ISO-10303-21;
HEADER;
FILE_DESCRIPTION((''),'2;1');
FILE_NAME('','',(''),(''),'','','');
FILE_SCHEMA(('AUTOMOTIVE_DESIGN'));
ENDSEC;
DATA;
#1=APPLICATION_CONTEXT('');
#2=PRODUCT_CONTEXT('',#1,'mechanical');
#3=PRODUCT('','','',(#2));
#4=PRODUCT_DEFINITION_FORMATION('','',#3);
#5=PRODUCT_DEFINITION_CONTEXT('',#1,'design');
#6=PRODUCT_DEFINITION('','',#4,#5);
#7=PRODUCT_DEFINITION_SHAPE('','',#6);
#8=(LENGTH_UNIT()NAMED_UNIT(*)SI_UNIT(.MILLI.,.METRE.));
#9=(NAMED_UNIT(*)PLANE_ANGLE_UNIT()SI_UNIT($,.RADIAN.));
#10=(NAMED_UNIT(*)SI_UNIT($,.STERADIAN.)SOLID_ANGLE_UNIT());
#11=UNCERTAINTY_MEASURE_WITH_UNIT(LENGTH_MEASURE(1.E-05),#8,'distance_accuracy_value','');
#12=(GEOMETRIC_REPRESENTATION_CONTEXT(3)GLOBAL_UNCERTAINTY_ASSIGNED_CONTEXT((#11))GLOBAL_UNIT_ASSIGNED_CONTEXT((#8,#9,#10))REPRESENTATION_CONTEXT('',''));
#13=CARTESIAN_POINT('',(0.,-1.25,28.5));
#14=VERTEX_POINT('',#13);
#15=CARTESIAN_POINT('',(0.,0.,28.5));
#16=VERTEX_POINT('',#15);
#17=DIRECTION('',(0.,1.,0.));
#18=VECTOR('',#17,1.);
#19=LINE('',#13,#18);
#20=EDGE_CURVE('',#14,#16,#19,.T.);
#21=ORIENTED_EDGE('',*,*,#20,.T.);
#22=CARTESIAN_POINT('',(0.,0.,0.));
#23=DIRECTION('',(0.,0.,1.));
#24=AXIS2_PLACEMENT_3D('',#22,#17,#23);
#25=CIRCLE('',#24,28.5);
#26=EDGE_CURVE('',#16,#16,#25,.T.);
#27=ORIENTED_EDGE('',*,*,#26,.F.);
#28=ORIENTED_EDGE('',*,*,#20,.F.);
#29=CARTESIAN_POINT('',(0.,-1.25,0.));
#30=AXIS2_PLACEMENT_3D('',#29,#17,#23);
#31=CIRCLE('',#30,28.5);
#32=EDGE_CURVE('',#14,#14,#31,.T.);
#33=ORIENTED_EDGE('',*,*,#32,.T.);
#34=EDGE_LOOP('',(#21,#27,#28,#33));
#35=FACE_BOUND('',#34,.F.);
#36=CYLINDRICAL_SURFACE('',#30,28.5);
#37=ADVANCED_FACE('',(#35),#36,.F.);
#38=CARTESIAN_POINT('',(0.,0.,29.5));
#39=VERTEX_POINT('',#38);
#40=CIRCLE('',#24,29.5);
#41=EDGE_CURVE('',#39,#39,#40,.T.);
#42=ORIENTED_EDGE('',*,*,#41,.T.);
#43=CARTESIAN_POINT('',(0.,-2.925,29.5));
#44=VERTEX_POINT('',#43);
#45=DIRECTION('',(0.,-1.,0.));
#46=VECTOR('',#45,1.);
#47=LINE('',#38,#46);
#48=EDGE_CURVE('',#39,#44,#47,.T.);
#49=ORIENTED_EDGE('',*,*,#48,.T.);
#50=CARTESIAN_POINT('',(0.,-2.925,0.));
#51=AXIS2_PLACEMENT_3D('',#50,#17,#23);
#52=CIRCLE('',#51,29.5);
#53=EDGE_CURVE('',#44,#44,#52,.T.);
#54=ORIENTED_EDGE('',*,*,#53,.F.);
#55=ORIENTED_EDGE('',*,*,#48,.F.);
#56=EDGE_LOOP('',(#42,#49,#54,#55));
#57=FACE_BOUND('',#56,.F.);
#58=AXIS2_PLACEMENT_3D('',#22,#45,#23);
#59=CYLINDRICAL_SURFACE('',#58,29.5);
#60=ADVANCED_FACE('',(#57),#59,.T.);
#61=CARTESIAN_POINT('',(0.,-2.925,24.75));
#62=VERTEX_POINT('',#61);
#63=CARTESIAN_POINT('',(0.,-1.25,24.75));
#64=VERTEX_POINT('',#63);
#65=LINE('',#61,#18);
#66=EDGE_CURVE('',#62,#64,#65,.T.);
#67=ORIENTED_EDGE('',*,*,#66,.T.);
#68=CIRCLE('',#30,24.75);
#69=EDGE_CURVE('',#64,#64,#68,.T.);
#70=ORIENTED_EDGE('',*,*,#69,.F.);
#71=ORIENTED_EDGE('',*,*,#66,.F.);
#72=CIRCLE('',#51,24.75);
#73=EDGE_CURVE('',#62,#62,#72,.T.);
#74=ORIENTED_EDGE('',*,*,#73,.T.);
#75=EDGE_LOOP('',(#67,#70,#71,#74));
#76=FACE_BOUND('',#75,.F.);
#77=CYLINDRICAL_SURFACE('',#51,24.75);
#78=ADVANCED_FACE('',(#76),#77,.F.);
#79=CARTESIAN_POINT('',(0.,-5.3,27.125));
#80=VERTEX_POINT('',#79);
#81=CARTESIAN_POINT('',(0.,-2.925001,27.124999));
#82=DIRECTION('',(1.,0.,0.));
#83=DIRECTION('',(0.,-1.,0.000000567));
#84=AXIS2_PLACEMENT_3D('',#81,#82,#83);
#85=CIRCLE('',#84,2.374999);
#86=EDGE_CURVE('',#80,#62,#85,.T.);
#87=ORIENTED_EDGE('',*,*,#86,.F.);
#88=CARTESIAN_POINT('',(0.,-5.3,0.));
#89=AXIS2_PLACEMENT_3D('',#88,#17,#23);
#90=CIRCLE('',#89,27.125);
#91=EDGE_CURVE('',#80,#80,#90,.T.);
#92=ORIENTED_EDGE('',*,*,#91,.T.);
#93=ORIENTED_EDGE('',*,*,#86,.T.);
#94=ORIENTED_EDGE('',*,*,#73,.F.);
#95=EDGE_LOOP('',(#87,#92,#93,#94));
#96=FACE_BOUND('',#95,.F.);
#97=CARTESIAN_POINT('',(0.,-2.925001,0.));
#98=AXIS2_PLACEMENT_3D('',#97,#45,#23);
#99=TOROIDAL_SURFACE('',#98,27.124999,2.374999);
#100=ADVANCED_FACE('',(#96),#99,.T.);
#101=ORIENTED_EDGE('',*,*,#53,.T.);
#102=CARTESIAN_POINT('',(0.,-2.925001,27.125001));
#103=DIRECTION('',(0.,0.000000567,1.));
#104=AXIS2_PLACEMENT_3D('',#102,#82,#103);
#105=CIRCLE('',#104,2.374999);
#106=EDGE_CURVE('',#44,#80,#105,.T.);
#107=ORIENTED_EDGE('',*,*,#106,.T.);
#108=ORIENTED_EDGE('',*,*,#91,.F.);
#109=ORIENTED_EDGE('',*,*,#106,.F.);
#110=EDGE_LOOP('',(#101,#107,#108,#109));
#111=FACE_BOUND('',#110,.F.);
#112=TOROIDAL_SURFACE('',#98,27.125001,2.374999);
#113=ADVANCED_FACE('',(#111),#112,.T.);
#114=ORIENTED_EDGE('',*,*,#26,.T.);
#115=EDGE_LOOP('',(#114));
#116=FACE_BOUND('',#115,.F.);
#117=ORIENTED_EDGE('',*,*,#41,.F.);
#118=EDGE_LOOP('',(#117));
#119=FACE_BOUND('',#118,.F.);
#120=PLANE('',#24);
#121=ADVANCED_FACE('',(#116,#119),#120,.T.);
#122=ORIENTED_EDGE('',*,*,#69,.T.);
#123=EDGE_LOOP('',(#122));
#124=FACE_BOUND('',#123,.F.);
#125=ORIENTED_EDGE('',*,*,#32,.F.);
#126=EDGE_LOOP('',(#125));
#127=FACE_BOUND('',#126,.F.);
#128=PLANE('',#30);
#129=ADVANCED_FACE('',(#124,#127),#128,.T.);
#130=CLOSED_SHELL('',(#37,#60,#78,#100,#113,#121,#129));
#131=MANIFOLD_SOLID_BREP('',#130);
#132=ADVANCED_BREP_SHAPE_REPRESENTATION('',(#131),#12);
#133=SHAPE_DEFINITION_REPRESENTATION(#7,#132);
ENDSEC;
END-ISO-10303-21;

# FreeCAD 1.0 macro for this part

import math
import FreeCAD as App
import Part
import Sketcher
from FreeCAD import Vector

doc = App.newDocument("Part")
body = doc.addObject("PartDesign::Body", "Body")

sketch1 = body.newObject("Sketcher::SketchObject", "Sketch")
sketch1.AttachmentSupport = (doc.getObject("YZ_Plane"), [""])
sketch1.MapMode = "FlatFace"
sketch1.addGeometry(Part.LineSegment(Vector(0, 28.5, 0), Vector(0, 29.5, 0)), False)
sketch1.addGeometry(Part.LineSegment(Vector(0, 29.5, 0), Vector(-2.9, 29.5, 0)), False)
sketch1.addGeometry(Part.ArcOfCircle(Part.Circle(Vector(-2.9, 27.1, 0), Vector(0, 0, 1), 2.4), math.radians(90), math.radians(180)), False)
sketch1.addGeometry(Part.ArcOfCircle(Part.Circle(Vector(-2.9, 27.1, 0), Vector(0, 0, 1), 2.4), math.radians(180), math.radians(270)), False)
sketch1.addGeometry(Part.LineSegment(Vector(-2.9, 24.8, 0), Vector(-1.2, 24.8, 0)), False)
sketch1.addGeometry(Part.LineSegment(Vector(-1.2, 24.8, 0), Vector(-1.2, 28.5, 0)), False)
sketch1.addGeometry(Part.LineSegment(Vector(-1.2, 28.5, 0), Vector(0, 28.5, 0)), False)
sketch1.addConstraint(Sketcher.Constraint("Coincident", 0, 2, 1, 1))
sketch1.addConstraint(Sketcher.Constraint("Tangent", 1, 2, 2, 1))
sketch1.addConstraint(Sketcher.Constraint("Tangent", 2, 2, 3, 1))
sketch1.addConstraint(Sketcher.Constraint("Tangent", 3, 2, 4, 1))
sketch1.addConstraint(Sketcher.Constraint("Coincident", 4, 2, 5, 1))
sketch1.addConstraint(Sketcher.Constraint("Coincident", 5, 2, 6, 1))
sketch1.addConstraint(Sketcher.Constraint("Coincident", 6, 2, 0, 1))
sketch1.addConstraint(Sketcher.Constraint("Vertical", 0))
sketch1.addConstraint(Sketcher.Constraint("Horizontal", 1))
sketch1.addConstraint(Sketcher.Constraint("Horizontal", 4))
sketch1.addConstraint(Sketcher.Constraint("Vertical", 5))
sketch1.addConstraint(Sketcher.Constraint("Horizontal", 6))
sketch1.addConstraint(Sketcher.Constraint("Equal", 2, 3))
sketch1.addConstraint(Sketcher.Constraint("PointOnObject", 0, 2, -2))
sketch1.addConstraint(Sketcher.Constraint("Horizontal", 3, 3, 2, 2))
sketch1.addConstraint(Sketcher.Constraint("DistanceY", 0, 1, 0, 2, 1.0))
sketch1.addConstraint(Sketcher.Constraint("Radius", 2, 2.374999))
sketch1.addConstraint(Sketcher.Constraint("DistanceX", 6, 1, 6, 2, 1.25))
sketch1.addConstraint(Sketcher.Constraint("DistanceY", -1, 1, 0, 2, 29.5))
sketch1.addConstraint(Sketcher.Constraint("DistanceX", 2, 2, -1, 1, 5.3))
revolution = body.newObject("PartDesign::Revolution", "Revolution")
revolution.Profile = sketch1
revolution.ReferenceAxis = (sketch1, ["H_Axis"])
revolution.Angle = 360

doc.recompute()
